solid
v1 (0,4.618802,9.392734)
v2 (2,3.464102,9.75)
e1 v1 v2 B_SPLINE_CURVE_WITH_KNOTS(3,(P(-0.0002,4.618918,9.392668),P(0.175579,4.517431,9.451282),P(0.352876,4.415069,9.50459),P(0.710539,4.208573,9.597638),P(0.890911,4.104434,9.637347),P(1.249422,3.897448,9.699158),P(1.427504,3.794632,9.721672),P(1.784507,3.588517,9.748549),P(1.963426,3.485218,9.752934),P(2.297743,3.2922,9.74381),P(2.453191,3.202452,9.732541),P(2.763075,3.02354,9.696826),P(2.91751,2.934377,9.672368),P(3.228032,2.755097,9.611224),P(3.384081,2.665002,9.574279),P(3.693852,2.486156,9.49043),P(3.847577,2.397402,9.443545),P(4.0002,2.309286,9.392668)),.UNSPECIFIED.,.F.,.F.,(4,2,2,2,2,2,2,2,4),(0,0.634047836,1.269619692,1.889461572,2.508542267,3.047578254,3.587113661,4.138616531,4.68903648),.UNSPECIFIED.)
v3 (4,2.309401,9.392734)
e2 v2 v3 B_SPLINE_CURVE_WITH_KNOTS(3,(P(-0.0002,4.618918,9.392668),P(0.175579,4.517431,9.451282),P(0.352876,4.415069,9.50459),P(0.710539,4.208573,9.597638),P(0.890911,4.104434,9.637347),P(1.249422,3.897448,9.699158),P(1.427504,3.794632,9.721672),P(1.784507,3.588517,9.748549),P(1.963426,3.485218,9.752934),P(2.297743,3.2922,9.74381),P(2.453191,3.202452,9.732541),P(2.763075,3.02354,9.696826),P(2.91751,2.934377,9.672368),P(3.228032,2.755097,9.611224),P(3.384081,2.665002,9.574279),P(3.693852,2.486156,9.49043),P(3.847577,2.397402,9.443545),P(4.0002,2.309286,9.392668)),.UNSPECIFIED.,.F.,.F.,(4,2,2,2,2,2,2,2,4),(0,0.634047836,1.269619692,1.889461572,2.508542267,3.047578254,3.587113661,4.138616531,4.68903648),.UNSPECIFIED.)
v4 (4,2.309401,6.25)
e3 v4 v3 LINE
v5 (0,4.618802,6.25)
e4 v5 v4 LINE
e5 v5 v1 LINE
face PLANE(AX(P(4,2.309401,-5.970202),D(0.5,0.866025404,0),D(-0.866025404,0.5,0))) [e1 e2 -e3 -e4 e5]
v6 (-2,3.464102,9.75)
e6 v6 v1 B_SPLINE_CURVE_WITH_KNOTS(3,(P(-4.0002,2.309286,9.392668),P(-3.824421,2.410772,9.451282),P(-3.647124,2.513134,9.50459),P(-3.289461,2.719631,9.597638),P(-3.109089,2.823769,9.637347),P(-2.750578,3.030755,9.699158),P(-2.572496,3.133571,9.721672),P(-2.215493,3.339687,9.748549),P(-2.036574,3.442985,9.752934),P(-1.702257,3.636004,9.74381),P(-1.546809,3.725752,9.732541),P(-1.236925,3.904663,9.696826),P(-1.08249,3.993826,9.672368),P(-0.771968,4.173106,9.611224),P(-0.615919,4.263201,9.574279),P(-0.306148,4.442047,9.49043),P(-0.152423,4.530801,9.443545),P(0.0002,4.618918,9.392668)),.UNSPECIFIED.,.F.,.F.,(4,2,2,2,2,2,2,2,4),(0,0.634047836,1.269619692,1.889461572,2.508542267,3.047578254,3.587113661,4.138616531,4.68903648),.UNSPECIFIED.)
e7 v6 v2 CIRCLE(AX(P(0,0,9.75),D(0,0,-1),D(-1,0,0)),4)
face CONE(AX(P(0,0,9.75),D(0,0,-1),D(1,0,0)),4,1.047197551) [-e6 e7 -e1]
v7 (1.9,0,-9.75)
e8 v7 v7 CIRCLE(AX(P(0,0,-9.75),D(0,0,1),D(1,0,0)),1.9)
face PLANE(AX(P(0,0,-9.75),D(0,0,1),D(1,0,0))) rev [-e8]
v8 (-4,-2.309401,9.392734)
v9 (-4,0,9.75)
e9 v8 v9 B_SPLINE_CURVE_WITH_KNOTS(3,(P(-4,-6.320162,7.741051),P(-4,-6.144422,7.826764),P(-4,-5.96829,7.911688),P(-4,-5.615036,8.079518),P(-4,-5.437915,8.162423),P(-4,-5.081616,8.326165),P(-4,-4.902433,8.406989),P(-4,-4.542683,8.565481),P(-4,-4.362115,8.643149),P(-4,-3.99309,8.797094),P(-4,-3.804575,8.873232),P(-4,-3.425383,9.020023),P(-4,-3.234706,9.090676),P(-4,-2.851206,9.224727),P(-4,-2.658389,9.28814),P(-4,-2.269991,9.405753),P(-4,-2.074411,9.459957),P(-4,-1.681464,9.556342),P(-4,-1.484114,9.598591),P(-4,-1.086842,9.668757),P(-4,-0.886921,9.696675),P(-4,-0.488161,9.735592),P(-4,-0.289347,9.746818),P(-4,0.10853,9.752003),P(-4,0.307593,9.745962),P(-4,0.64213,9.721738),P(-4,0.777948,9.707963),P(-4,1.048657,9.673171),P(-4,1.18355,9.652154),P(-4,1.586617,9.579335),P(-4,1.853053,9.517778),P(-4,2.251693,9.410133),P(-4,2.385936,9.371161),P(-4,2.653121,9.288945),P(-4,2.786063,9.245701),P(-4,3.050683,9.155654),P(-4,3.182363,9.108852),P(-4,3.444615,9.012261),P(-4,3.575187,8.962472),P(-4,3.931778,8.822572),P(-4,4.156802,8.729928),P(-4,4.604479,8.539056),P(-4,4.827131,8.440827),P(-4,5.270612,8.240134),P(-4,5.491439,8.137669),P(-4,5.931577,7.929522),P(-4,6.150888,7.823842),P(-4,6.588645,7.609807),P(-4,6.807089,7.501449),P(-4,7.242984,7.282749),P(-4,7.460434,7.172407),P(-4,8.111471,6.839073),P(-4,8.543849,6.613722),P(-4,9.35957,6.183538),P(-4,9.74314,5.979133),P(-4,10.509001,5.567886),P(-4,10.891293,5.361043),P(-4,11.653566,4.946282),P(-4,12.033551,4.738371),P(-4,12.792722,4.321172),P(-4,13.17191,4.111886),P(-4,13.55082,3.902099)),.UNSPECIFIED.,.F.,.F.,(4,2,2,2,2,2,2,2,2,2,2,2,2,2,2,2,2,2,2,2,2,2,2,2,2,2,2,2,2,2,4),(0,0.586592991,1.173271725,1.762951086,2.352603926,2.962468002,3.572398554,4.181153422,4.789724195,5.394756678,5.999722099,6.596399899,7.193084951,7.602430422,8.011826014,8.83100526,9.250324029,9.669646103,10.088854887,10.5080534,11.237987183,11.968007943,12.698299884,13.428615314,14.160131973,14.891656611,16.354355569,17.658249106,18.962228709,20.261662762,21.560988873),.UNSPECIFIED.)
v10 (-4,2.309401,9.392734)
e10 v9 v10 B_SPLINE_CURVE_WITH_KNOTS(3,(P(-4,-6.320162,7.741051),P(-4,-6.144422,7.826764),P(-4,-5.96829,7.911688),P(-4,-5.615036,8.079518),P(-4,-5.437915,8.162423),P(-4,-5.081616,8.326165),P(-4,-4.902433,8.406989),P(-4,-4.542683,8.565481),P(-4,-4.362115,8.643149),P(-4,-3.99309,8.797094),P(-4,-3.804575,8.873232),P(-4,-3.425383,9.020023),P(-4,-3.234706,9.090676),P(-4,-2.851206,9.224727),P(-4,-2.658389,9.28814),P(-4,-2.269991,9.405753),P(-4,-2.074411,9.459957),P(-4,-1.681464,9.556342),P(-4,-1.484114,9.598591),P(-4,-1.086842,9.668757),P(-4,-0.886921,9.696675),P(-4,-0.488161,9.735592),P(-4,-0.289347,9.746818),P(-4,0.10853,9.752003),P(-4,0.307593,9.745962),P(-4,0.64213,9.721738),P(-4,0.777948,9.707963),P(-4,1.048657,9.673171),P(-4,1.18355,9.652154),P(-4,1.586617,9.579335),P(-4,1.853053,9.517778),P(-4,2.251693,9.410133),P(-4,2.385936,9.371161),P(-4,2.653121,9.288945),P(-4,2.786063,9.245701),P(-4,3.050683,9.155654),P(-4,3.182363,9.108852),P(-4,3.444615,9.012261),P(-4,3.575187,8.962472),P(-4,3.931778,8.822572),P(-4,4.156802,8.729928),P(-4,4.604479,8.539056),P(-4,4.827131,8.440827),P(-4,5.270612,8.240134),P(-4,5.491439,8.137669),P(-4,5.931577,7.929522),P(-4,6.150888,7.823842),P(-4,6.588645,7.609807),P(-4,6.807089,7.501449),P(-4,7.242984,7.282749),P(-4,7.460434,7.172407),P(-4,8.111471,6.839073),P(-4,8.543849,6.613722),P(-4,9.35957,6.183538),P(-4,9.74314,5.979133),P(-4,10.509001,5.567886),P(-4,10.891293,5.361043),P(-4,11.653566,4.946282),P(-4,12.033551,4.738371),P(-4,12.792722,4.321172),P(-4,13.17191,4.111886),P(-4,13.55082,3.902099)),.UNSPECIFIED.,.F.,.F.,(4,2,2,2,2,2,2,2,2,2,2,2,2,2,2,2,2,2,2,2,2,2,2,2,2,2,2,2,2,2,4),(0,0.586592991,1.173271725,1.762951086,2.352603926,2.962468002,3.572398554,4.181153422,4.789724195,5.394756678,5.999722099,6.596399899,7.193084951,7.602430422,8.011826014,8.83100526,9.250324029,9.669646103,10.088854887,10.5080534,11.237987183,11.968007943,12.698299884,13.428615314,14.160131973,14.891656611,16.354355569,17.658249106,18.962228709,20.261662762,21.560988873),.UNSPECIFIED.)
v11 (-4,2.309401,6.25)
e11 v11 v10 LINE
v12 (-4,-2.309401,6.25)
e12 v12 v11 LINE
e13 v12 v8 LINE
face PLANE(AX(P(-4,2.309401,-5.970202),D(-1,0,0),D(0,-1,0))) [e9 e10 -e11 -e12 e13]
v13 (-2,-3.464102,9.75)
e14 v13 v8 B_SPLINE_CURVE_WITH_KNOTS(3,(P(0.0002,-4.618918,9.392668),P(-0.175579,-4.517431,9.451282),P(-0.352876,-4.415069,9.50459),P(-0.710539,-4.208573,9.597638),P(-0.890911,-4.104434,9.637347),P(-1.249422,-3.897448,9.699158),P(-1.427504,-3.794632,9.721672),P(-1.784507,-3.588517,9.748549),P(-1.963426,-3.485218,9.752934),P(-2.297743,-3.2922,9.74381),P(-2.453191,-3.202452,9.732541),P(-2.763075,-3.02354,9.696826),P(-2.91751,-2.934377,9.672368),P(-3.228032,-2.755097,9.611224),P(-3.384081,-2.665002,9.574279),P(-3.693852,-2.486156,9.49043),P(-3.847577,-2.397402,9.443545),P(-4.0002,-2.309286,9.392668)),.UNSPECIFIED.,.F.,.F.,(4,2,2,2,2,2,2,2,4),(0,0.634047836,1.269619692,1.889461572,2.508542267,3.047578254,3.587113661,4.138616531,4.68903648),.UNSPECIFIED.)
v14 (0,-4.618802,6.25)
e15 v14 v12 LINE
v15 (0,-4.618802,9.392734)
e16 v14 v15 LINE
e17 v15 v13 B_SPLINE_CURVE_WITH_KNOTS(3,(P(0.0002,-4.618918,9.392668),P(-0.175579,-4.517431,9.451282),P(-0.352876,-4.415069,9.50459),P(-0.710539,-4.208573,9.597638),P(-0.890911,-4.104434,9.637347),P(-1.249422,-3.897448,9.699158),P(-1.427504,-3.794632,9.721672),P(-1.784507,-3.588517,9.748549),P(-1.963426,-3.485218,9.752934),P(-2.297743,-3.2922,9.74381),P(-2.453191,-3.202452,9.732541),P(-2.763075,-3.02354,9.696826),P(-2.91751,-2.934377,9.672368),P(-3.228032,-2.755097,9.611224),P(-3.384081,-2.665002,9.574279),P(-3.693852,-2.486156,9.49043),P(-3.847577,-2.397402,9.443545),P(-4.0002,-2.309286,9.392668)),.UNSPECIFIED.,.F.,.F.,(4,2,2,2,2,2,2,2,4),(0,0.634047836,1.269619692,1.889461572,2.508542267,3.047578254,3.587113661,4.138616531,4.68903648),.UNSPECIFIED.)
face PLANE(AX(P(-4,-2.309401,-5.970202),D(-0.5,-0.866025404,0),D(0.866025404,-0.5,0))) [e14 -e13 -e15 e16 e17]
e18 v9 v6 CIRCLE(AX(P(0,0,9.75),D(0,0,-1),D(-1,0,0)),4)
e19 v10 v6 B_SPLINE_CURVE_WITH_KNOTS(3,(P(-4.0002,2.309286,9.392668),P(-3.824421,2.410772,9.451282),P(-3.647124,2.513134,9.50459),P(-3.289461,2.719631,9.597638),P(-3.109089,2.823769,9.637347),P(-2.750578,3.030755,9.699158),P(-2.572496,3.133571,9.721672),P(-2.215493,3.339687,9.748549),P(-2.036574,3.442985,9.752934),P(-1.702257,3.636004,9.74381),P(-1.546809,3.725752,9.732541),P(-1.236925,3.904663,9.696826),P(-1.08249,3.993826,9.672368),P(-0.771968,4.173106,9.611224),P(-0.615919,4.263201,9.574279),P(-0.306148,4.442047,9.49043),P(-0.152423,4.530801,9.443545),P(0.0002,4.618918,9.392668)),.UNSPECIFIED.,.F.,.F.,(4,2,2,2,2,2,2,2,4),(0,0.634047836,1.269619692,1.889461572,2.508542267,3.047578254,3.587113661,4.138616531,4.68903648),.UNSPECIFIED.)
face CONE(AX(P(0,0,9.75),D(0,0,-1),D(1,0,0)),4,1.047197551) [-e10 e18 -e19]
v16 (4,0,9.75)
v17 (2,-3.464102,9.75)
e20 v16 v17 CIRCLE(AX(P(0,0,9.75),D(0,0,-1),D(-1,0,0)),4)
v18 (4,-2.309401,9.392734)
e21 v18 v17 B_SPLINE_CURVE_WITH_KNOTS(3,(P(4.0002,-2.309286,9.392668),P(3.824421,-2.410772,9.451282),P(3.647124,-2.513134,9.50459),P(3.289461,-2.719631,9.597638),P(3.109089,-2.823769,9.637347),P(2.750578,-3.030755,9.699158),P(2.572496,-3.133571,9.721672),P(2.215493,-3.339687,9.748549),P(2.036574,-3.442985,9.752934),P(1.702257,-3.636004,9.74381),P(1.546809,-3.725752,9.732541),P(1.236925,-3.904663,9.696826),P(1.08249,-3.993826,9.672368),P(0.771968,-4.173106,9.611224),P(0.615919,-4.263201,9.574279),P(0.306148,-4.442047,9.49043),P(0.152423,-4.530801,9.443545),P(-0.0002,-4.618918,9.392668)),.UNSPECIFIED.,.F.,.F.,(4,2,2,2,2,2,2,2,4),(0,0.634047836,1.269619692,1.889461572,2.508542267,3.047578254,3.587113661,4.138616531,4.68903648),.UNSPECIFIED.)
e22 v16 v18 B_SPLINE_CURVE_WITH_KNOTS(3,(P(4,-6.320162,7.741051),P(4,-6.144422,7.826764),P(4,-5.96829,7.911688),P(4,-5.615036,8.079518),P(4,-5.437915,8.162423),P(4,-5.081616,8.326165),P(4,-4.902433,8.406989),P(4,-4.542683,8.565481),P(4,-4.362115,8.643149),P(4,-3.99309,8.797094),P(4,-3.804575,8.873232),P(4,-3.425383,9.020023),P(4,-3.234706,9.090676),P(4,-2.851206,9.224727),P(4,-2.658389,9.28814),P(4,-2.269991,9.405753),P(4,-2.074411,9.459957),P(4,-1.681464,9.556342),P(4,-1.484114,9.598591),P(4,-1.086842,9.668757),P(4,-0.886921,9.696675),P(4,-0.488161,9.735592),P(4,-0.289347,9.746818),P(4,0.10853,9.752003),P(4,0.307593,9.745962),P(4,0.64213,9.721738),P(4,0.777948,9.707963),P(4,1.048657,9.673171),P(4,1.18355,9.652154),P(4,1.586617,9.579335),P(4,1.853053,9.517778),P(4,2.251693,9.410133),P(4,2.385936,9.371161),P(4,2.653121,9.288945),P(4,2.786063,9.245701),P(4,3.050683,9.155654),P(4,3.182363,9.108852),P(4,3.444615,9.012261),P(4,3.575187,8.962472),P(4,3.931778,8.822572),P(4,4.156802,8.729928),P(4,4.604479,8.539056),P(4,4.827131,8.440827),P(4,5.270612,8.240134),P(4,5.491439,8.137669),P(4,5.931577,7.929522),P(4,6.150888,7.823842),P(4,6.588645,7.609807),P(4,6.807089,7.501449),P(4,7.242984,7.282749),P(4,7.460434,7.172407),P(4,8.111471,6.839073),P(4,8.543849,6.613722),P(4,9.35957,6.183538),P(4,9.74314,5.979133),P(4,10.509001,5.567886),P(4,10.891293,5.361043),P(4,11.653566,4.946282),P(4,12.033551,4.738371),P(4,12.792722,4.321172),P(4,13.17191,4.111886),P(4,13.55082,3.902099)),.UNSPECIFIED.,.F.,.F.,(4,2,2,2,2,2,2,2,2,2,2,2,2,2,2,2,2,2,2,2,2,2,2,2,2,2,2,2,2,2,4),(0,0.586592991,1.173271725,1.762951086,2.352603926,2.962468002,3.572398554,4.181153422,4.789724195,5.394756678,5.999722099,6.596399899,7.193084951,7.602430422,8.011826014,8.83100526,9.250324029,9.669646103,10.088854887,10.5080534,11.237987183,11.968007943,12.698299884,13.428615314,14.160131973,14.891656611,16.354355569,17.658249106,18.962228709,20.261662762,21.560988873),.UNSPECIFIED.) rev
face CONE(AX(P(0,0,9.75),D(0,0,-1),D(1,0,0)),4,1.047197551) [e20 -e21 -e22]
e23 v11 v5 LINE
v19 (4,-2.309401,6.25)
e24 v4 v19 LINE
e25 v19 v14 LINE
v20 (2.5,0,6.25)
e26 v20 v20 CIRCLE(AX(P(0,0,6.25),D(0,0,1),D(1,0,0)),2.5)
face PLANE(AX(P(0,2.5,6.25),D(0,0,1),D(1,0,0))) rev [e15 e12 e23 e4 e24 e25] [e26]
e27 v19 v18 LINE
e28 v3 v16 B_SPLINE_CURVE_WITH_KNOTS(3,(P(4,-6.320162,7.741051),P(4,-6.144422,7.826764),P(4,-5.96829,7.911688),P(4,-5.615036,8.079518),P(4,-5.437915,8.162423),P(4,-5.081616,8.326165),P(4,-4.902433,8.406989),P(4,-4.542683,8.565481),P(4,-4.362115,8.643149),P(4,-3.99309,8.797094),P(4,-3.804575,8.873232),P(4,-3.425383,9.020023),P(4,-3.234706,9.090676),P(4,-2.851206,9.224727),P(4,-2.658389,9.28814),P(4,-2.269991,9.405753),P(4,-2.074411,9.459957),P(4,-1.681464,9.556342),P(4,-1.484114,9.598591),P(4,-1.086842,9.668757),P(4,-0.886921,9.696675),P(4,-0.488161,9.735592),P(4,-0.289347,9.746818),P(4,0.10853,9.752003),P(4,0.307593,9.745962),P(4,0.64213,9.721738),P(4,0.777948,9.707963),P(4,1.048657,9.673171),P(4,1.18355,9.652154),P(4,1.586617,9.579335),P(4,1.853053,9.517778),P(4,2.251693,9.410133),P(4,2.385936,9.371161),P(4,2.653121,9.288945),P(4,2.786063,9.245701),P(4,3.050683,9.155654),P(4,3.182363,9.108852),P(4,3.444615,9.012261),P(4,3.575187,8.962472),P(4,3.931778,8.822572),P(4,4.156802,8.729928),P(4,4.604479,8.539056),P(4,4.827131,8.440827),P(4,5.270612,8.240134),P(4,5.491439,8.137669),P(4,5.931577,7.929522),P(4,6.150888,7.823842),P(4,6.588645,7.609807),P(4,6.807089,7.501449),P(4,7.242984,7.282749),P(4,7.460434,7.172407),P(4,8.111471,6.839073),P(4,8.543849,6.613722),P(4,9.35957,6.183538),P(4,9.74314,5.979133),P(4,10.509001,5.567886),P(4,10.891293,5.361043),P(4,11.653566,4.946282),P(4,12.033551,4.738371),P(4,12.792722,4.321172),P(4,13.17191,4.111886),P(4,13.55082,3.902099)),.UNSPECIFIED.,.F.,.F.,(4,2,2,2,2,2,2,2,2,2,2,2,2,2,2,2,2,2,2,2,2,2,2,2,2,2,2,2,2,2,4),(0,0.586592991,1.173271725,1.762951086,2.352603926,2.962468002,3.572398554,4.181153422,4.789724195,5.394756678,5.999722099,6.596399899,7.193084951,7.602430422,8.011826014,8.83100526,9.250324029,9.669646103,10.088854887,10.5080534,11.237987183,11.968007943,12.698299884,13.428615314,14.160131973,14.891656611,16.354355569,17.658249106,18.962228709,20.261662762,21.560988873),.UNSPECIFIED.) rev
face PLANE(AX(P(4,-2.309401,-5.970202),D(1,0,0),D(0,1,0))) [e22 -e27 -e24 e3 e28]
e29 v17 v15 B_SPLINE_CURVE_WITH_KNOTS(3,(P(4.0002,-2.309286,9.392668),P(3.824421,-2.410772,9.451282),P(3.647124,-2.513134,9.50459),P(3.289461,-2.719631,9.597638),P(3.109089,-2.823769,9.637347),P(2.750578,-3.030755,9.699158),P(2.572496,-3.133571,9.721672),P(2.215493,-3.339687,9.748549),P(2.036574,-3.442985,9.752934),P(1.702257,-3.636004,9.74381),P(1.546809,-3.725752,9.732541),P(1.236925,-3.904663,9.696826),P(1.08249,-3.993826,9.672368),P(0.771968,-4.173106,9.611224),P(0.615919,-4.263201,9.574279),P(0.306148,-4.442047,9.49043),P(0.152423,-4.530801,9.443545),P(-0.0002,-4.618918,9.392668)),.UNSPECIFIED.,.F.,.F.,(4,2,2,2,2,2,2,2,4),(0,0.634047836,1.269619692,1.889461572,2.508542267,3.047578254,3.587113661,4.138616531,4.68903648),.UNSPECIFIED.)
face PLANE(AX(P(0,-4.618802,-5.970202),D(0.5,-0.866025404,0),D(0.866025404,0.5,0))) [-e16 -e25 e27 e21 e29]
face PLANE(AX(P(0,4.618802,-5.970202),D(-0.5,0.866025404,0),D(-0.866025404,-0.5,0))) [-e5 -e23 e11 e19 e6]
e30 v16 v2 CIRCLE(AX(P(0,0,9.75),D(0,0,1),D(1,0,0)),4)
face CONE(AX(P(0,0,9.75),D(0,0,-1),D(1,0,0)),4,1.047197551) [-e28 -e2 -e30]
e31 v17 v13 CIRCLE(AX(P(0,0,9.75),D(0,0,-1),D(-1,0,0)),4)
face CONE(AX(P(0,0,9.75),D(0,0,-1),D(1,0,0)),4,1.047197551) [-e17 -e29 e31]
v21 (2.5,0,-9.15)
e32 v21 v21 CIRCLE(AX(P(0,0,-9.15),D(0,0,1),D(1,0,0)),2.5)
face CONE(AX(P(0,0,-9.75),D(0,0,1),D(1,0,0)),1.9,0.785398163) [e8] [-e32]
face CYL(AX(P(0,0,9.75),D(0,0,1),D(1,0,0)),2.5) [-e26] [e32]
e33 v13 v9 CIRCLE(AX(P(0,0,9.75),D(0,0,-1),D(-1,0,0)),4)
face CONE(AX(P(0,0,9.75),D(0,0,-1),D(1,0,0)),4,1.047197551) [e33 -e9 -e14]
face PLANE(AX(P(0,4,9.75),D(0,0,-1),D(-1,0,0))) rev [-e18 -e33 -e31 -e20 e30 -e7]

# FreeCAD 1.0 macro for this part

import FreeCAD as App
import Part
import Sketcher
Q = App.Units.Quantity


def faces_at(feature, points):
    """Names of the faces that lie closest to the given points."""
    faces = feature.Shape.Faces
    near = lambda p: min(range(len(faces)), key=lambda i: faces[i].distToShape(Part.Vertex(*p))[0])
    return sorted({f"Face{near(p) + 1}" for p in points})

doc = App.newDocument("Part")
body = doc.addObject("PartDesign::Body", "Body")

sketch1 = doc.addObject("Sketcher::SketchObject", "Sketch")
body.addObject(sketch1)
sketch1.AttachmentSupport = (doc.YZ_Plane, [""])
sketch1.MapMode = "FlatFace"
sketch1.addGeometry(Part.LineSegment(App.Vector(4, 9.8, 0), App.Vector(0, 9.8, 0)), False)
sketch1.addGeometry(Part.LineSegment(App.Vector(0, 9.8, 0), App.Vector(0, -9.8, 0)), False)
sketch1.addGeometry(Part.LineSegment(App.Vector(0, -9.8, 0), App.Vector(1.9, -9.8, 0)), False)
sketch1.addGeometry(Part.LineSegment(App.Vector(1.9, -9.8, 0), App.Vector(2.5, -9.2, 0)), False)
sketch1.addGeometry(Part.LineSegment(App.Vector(2.5, -9.2, 0), App.Vector(2.5, 6.2, 0)), False)
sketch1.addGeometry(Part.LineSegment(App.Vector(2.5, 6.2, 0), App.Vector(4, 6.2, 0)), False)
sketch1.addGeometry(Part.LineSegment(App.Vector(4, 6.2, 0), App.Vector(4, 9.8, 0)), False)
sketch1.addConstraint(Sketcher.Constraint("Coincident", 0, 2, 1, 1))
sketch1.addConstraint(Sketcher.Constraint("Coincident", 1, 2, 2, 1))
sketch1.addConstraint(Sketcher.Constraint("Coincident", 2, 2, 3, 1))
sketch1.addConstraint(Sketcher.Constraint("Coincident", 3, 2, 4, 1))
sketch1.addConstraint(Sketcher.Constraint("Coincident", 4, 2, 5, 1))
sketch1.addConstraint(Sketcher.Constraint("Coincident", 5, 2, 6, 1))
sketch1.addConstraint(Sketcher.Constraint("Coincident", 6, 2, 0, 1))
sketch1.addConstraint(Sketcher.Constraint("Horizontal", 0))
sketch1.addConstraint(Sketcher.Constraint("Vertical", 1))
sketch1.addConstraint(Sketcher.Constraint("Horizontal", 2))
sketch1.addConstraint(Sketcher.Constraint("Vertical", 4))
sketch1.addConstraint(Sketcher.Constraint("Horizontal", 5))
sketch1.addConstraint(Sketcher.Constraint("Vertical", 6))
sketch1.addConstraint(Sketcher.Constraint("Symmetric", 0, 2, 1, 2, -1, 1))
sketch1.addConstraint(Sketcher.Constraint("DistanceX", 0, 2, 0, 1, Q("4 mm")))
sketch1.addConstraint(Sketcher.Constraint("Angle", 3, Q("45 deg")))
sketch1.addConstraint(Sketcher.Constraint("DistanceX", 2, 1, 2, 2, Q("1.9 mm")))
sketch1.addConstraint(Sketcher.Constraint("DistanceX", 5, 1, 5, 2, Q("1.5 mm")))
sketch1.addConstraint(Sketcher.Constraint("DistanceY", 1, 2, 1, 1, Q("19.5 mm")))
sketch1.addConstraint(Sketcher.Constraint("DistanceY", 4, 1, 4, 2, Q("15.4 mm")))
revolution = doc.addObject("PartDesign::Revolution", "Revolution")
body.addObject(revolution)
revolution.Profile = sketch1
revolution.ReferenceAxis = (sketch1, ["V_Axis"])
revolution.Angle = 360

sketch2 = doc.addObject("Sketcher::SketchObject", "Sketch001")
body.addObject(sketch2)
sketch2.AttachmentSupport = (doc.XY_Plane, [""])
sketch2.MapMode = "FlatFace"
sketch2.AttachmentOffset = App.Placement(App.Vector(0, 0, 9.75), App.Rotation())
sketch2.addGeometry(Part.LineSegment(App.Vector(0, 4.6, 0), App.Vector(-4, 2.3, 0)), False)
sketch2.addGeometry(Part.LineSegment(App.Vector(-4, 2.3, 0), App.Vector(-4, -2.3, 0)), False)
sketch2.addGeometry(Part.LineSegment(App.Vector(-4, -2.3, 0), App.Vector(0, -4.6, 0)), False)
sketch2.addGeometry(Part.LineSegment(App.Vector(0, -4.6, 0), App.Vector(4, -2.3, 0)), False)
sketch2.addGeometry(Part.LineSegment(App.Vector(4, -2.3, 0), App.Vector(4, 2.3, 0)), False)
sketch2.addGeometry(Part.LineSegment(App.Vector(4, 2.3, 0), App.Vector(0, 4.6, 0)), False)
sketch2.addConstraint(Sketcher.Constraint("Coincident", 0, 2, 1, 1))
sketch2.addConstraint(Sketcher.Constraint("Coincident", 1, 2, 2, 1))
sketch2.addConstraint(Sketcher.Constraint("Coincident", 2, 2, 3, 1))
sketch2.addConstraint(Sketcher.Constraint("Coincident", 3, 2, 4, 1))
sketch2.addConstraint(Sketcher.Constraint("Coincident", 4, 2, 5, 1))
sketch2.addConstraint(Sketcher.Constraint("Coincident", 5, 2, 0, 1))
sketch2.addConstraint(Sketcher.Constraint("Vertical", 1))
sketch2.addConstraint(Sketcher.Constraint("Vertical", 4))
sketch2.addConstraint(Sketcher.Constraint("Symmetric", 0, 2, 3, 2, -1, 1))
sketch2.addConstraint(Sketcher.Constraint("Symmetric", 2, 2, 5, 2, -1, 1))
sketch2.addConstraint(Sketcher.Constraint("PointOnObject", 2, 2, -2))
sketch2.addConstraint(Sketcher.Constraint("Parallel", 2, 5))
sketch2.addConstraint(Sketcher.Constraint("Horizontal", 1, 2, 3, 2))
sketch2.addConstraint(Sketcher.Constraint("Angle", 0, Q("-150 deg")))
sketch2.addConstraint(Sketcher.Constraint("DistanceX", 0, 2, -1, 1, Q("4 mm")))
sketch2.addConstraint(Sketcher.Constraint("DistanceY", -1, 1, 0, 2, Q("2.309401 mm")))
pad1 = doc.addObject("PartDesign::Pad", "Pad")
body.addObject(pad1)
pad1.Profile = sketch2
pad1.Length = 3.5
pad1.Reversed = True
body2 = doc.addObject("PartDesign::Body", "Body001")

sketch3 = doc.addObject("Sketcher::SketchObject", "Sketch002")
body2.addObject(sketch3)
sketch3.AttachmentSupport = (doc.getObject("XY_Plane001"), [""])
sketch3.MapMode = "FlatFace"
sketch3.AttachmentOffset = App.Placement(App.Vector(0, 0, 9.75), App.Rotation())
sketch3.addGeometry(Part.LineSegment(App.Vector(-44.4, 45, 0), App.Vector(-44.4, -45, 0)), False)
sketch3.addGeometry(Part.LineSegment(App.Vector(-44.4, -45, 0), App.Vector(44.4, -45, 0)), False)
sketch3.addGeometry(Part.LineSegment(App.Vector(44.4, -45, 0), App.Vector(44.4, 45, 0)), False)
sketch3.addGeometry(Part.LineSegment(App.Vector(44.4, 45, 0), App.Vector(-44.4, 45, 0)), False)
sketch3.addGeometry(Part.Circle(App.Vector(0, 0, 0), App.Vector(0, 0, 1), 4), False)
sketch3.addConstraint(Sketcher.Constraint("Coincident", 0, 2, 1, 1))
sketch3.addConstraint(Sketcher.Constraint("Coincident", 1, 2, 2, 1))
sketch3.addConstraint(Sketcher.Constraint("Coincident", 2, 2, 3, 1))
sketch3.addConstraint(Sketcher.Constraint("Coincident", 3, 2, 0, 1))
sketch3.addConstraint(Sketcher.Constraint("Vertical", 0))
sketch3.addConstraint(Sketcher.Constraint("Horizontal", 1))
sketch3.addConstraint(Sketcher.Constraint("Vertical", 2))
sketch3.addConstraint(Sketcher.Constraint("Horizontal", 3))
sketch3.addConstraint(Sketcher.Constraint("Coincident", 4, 3, -1, 1))
sketch3.addConstraint(Sketcher.Constraint("Symmetric", 0, 2, 2, 2, -1, 1))
sketch3.addConstraint(Sketcher.Constraint("Diameter", 4, Q("8 mm")))
sketch3.addConstraint(Sketcher.Constraint("DistanceX", 1, 1, 1, 2, Q("88.856 mm")))
sketch3.addConstraint(Sketcher.Constraint("DistanceY", 0, 2, 0, 1, Q("90.094 mm")))
pad2 = doc.addObject("PartDesign::Pad", "Pad001")
body2.addObject(pad2)
pad2.Profile = sketch3
pad2.Length = 21.434856
pad2.Reversed = True
doc.recompute()

datumplane = doc.addObject("PartDesign::Plane", "DatumPlane")
body2.addObject(datumplane)
datumplane.AttachmentSupport = (doc.getObject("XY_Plane001"), [""])
datumplane.MapMode = "FlatFace"
datumplane.AttachmentOffset = App.Placement(App.Vector(0, 0, 9.75), App.Rotation())
draft = doc.addObject("PartDesign::Draft", "Draft")
body2.addObject(draft)
draft.Base = (pad2, faces_at(pad2, [
    (0, -45.047, -0.967),
    (44.428, 0, -0.967),
    (0, 45.047, -0.967),
    (-44.428, 0, -0.967),
    (-4, 0, -0.967),
]))
draft.NeutralPlane = (datumplane, [""])
draft.Angle = 60
draft.Reversed = True
doc.recompute()

boolean = doc.addObject("PartDesign::Boolean", "Boolean")
body.addObject(boolean)
boolean.Type = "Cut"
boolean.addObjects([body2])

doc.recompute()
